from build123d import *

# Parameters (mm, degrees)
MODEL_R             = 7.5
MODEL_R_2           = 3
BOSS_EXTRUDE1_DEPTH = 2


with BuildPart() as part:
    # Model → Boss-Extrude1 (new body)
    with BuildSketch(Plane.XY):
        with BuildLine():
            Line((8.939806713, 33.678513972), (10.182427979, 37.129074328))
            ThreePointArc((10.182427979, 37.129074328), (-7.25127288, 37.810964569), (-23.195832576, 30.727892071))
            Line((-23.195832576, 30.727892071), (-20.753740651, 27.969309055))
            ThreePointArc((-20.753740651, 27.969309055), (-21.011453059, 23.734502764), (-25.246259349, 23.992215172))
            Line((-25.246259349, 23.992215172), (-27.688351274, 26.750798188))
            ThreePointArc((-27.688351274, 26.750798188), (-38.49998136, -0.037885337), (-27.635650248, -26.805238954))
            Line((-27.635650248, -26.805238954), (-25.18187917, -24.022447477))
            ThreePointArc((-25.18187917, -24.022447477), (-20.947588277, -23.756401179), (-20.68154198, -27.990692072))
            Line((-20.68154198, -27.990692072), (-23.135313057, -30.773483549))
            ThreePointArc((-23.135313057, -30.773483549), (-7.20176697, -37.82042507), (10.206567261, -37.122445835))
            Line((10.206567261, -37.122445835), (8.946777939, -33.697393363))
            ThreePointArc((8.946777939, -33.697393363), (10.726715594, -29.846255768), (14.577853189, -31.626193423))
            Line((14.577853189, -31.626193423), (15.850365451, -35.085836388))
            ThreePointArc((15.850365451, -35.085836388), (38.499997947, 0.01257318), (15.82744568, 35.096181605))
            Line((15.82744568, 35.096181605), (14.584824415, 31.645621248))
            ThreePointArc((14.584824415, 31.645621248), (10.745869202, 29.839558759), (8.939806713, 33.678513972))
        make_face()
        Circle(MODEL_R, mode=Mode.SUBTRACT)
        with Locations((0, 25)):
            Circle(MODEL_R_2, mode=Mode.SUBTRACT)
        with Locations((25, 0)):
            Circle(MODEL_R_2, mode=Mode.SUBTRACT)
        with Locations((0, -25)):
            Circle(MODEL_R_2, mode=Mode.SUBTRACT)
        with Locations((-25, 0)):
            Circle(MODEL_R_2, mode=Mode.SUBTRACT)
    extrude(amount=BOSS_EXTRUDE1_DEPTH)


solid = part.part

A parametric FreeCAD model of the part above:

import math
import FreeCAD as App
import Part
import Sketcher

doc = App.newDocument("Part")
body = doc.addObject("PartDesign::Body", "Body")

sketch1 = doc.addObject("Sketcher::SketchObject", "Sketch")
body.addObject(sketch1)
sketch1.AttachmentSupport = (doc.XY_Plane, [""])
sketch1.MapMode = "FlatFace"
sketch1.addGeometry([
    Part.LineSegment(App.Vector(8.9, 33.7, 0), App.Vector(10.2, 37.1, 0)),
    Part.ArcOfCircle(Part.Circle(App.Vector(0, 0, 0), App.Vector(0, 0, 1), 38.5), math.radians(75), math.radians(127)),
    Part.LineSegment(App.Vector(-23.2, 30.7, 0), App.Vector(-20.8, 28, 0)),
    Part.ArcOfCircle(Part.Circle(App.Vector(-23, 26, 0), App.Vector(0, 0, 1), 3), math.radians(-138), math.radians(42)),
    Part.LineSegment(App.Vector(-25.2, 24, 0), App.Vector(-27.7, 26.8, 0)),
    Part.ArcOfCircle(Part.Circle(App.Vector(0, 0, 0), App.Vector(0, 0, 1), 38.5), math.radians(136), math.radians(224)),
    Part.LineSegment(App.Vector(-27.6, -26.8, 0), App.Vector(-25.2, -24, 0)),
    Part.ArcOfCircle(Part.Circle(App.Vector(-22.9, -26, 0), App.Vector(0, 0, 1), 3), math.radians(-41), math.radians(139)),
    Part.LineSegment(App.Vector(-20.7, -28, 0), App.Vector(-23.1, -30.8, 0)),
    Part.ArcOfCircle(Part.Circle(App.Vector(0, 0, 0), App.Vector(0, 0, 1), 38.5), math.radians(-127), math.radians(-75)),
    Part.LineSegment(App.Vector(10.2, -37.1, 0), App.Vector(8.9, -33.7, 0)),
    Part.ArcOfCircle(Part.Circle(App.Vector(11.8, -32.7, 0), App.Vector(0, 0, 1), 3), math.radians(20), math.radians(200)),
    Part.LineSegment(App.Vector(14.6, -31.6, 0), App.Vector(15.9, -35.1, 0)),
    Part.ArcOfCircle(Part.Circle(App.Vector(0, 0, 0), App.Vector(0, 0, 1), 38.5), math.radians(-66), math.radians(66)),
    Part.LineSegment(App.Vector(15.8, 35.1, 0), App.Vector(14.6, 31.6, 0)),
    Part.ArcOfCircle(Part.Circle(App.Vector(11.8, 32.7, 0), App.Vector(0, 0, 1), 3), math.radians(160), math.radians(340)),
    Part.Circle(App.Vector(0, -25, 0), App.Vector(0, 0, 1), 3),
    Part.Circle(App.Vector(-25, 0, 0), App.Vector(0, 0, 1), 3),
    Part.Circle(App.Vector(0, 0, 0), App.Vector(0, 0, 1), 7.5),
    Part.Circle(App.Vector(25, 0, 0), App.Vector(0, 0, 1), 3),
    Part.Circle(App.Vector(0, 25, 0), App.Vector(0, 0, 1), 3),
], False)
sketch1.addConstraint([
    Sketcher.Constraint("Coincident", 0, 2, 1, 1),
    Sketcher.Constraint("Coincident", 1, 2, 2, 1),
    Sketcher.Constraint("Tangent", 2, 2, 3, 2),
    Sketcher.Constraint("Tangent", 3, 1, 4, 1),
    Sketcher.Constraint("Coincident", 4, 2, 5, 1),
    Sketcher.Constraint("Coincident", 5, 2, 6, 1),
    Sketcher.Constraint("Tangent", 6, 2, 7, 2),
    Sketcher.Constraint("Tangent", 7, 1, 8, 1),
    Sketcher.Constraint("Coincident", 8, 2, 9, 1),
    Sketcher.Constraint("Coincident", 9, 2, 10, 1),
    Sketcher.Constraint("Tangent", 10, 2, 11, 2),
    Sketcher.Constraint("Tangent", 11, 1, 12, 1),
    Sketcher.Constraint("Coincident", 12, 2, 13, 1),
    Sketcher.Constraint("Coincident", 13, 2, 14, 1),
    Sketcher.Constraint("Tangent", 14, 2, 15, 2),
    Sketcher.Constraint("Tangent", 15, 1, 0, 1),
    Sketcher.Constraint("Coincident", 1, 3, -1, 1),
    Sketcher.Constraint("Coincident", 5, 3, -1, 1),
    Sketcher.Constraint("Coincident", 9, 3, -1, 1),
    Sketcher.Constraint("Coincident", 13, 3, -1, 1),
    Sketcher.Constraint("Coincident", 18, 3, -1, 1),
    Sketcher.Constraint("Equal", 1, 5),
    Sketcher.Constraint("Equal", 3, 7),
    Sketcher.Constraint("Equal", 5, 9),
    Sketcher.Constraint("Equal", 9, 13),
    Sketcher.Constraint("Equal", 11, 15),
    Sketcher.Constraint("Equal", 7, 16),
    Sketcher.Constraint("Equal", 16, 17),
    Sketcher.Constraint("Equal", 17, 19),
    Sketcher.Constraint("Equal", 19, 20),
    Sketcher.Constraint("Symmetric", 17, 3, 19, 3, -1, 1),
    Sketcher.Constraint("Symmetric", 16, 3, 20, 3, -1, 1),
    Sketcher.Constraint("PointOnObject", 16, 3, -2),
    Sketcher.Constraint("PointOnObject", 17, 3, -1),
    Sketcher.Constraint("Parallel", 2, 4),
    Sketcher.Constraint("Parallel", 6, 8),
    Sketcher.Constraint("Parallel", 10, 12),
    Sketcher.Constraint("Parallel", 0, 14),
    Sketcher.Constraint("Vertical", 11, 3, 15, 3),
    Sketcher.Constraint("Equal", 2, 4),
    Sketcher.Constraint("Equal", 6, 8),
    Sketcher.Constraint("Equal", 0, 14),
    Sketcher.Constraint("Diameter", 16, 6.0),
    Sketcher.Constraint("Diameter", 18, 15.0),
    Sketcher.Constraint("Radius", 1, 38.5),
    Sketcher.Constraint("DistanceX", 3, 3, -1, 1, 23.0),
    Sketcher.Constraint("DistanceY", 16, 3, -1, 1, 25.0),
    Sketcher.Constraint("DistanceX", 17, 3, -1, 1, 25.0),
    Sketcher.Constraint("Radius", 11, 2.999953),
    Sketcher.Constraint("DistanceY", -1, 1, 4, 2, 26.750798),
    Sketcher.Constraint("DistanceY", 10, 2, 11, 3, 1.0356),
    Sketcher.Constraint("DistanceY", 10, 2, 7, 1, 5.706701),
    Sketcher.Constraint("Distance", 0, 3.667489),
    Sketcher.Constraint("Distance", 6, 3.710111),
    Sketcher.Constraint("Distance", 10, 3.649391),
    Sketcher.Constraint("DistanceX", 7, 3, -1, 1, 22.931711),
])
pad1 = doc.addObject("PartDesign::Pad", "Pad")
body.addObject(pad1)
pad1.Profile = sketch1
pad1.Length = 2

doc.recompute()
